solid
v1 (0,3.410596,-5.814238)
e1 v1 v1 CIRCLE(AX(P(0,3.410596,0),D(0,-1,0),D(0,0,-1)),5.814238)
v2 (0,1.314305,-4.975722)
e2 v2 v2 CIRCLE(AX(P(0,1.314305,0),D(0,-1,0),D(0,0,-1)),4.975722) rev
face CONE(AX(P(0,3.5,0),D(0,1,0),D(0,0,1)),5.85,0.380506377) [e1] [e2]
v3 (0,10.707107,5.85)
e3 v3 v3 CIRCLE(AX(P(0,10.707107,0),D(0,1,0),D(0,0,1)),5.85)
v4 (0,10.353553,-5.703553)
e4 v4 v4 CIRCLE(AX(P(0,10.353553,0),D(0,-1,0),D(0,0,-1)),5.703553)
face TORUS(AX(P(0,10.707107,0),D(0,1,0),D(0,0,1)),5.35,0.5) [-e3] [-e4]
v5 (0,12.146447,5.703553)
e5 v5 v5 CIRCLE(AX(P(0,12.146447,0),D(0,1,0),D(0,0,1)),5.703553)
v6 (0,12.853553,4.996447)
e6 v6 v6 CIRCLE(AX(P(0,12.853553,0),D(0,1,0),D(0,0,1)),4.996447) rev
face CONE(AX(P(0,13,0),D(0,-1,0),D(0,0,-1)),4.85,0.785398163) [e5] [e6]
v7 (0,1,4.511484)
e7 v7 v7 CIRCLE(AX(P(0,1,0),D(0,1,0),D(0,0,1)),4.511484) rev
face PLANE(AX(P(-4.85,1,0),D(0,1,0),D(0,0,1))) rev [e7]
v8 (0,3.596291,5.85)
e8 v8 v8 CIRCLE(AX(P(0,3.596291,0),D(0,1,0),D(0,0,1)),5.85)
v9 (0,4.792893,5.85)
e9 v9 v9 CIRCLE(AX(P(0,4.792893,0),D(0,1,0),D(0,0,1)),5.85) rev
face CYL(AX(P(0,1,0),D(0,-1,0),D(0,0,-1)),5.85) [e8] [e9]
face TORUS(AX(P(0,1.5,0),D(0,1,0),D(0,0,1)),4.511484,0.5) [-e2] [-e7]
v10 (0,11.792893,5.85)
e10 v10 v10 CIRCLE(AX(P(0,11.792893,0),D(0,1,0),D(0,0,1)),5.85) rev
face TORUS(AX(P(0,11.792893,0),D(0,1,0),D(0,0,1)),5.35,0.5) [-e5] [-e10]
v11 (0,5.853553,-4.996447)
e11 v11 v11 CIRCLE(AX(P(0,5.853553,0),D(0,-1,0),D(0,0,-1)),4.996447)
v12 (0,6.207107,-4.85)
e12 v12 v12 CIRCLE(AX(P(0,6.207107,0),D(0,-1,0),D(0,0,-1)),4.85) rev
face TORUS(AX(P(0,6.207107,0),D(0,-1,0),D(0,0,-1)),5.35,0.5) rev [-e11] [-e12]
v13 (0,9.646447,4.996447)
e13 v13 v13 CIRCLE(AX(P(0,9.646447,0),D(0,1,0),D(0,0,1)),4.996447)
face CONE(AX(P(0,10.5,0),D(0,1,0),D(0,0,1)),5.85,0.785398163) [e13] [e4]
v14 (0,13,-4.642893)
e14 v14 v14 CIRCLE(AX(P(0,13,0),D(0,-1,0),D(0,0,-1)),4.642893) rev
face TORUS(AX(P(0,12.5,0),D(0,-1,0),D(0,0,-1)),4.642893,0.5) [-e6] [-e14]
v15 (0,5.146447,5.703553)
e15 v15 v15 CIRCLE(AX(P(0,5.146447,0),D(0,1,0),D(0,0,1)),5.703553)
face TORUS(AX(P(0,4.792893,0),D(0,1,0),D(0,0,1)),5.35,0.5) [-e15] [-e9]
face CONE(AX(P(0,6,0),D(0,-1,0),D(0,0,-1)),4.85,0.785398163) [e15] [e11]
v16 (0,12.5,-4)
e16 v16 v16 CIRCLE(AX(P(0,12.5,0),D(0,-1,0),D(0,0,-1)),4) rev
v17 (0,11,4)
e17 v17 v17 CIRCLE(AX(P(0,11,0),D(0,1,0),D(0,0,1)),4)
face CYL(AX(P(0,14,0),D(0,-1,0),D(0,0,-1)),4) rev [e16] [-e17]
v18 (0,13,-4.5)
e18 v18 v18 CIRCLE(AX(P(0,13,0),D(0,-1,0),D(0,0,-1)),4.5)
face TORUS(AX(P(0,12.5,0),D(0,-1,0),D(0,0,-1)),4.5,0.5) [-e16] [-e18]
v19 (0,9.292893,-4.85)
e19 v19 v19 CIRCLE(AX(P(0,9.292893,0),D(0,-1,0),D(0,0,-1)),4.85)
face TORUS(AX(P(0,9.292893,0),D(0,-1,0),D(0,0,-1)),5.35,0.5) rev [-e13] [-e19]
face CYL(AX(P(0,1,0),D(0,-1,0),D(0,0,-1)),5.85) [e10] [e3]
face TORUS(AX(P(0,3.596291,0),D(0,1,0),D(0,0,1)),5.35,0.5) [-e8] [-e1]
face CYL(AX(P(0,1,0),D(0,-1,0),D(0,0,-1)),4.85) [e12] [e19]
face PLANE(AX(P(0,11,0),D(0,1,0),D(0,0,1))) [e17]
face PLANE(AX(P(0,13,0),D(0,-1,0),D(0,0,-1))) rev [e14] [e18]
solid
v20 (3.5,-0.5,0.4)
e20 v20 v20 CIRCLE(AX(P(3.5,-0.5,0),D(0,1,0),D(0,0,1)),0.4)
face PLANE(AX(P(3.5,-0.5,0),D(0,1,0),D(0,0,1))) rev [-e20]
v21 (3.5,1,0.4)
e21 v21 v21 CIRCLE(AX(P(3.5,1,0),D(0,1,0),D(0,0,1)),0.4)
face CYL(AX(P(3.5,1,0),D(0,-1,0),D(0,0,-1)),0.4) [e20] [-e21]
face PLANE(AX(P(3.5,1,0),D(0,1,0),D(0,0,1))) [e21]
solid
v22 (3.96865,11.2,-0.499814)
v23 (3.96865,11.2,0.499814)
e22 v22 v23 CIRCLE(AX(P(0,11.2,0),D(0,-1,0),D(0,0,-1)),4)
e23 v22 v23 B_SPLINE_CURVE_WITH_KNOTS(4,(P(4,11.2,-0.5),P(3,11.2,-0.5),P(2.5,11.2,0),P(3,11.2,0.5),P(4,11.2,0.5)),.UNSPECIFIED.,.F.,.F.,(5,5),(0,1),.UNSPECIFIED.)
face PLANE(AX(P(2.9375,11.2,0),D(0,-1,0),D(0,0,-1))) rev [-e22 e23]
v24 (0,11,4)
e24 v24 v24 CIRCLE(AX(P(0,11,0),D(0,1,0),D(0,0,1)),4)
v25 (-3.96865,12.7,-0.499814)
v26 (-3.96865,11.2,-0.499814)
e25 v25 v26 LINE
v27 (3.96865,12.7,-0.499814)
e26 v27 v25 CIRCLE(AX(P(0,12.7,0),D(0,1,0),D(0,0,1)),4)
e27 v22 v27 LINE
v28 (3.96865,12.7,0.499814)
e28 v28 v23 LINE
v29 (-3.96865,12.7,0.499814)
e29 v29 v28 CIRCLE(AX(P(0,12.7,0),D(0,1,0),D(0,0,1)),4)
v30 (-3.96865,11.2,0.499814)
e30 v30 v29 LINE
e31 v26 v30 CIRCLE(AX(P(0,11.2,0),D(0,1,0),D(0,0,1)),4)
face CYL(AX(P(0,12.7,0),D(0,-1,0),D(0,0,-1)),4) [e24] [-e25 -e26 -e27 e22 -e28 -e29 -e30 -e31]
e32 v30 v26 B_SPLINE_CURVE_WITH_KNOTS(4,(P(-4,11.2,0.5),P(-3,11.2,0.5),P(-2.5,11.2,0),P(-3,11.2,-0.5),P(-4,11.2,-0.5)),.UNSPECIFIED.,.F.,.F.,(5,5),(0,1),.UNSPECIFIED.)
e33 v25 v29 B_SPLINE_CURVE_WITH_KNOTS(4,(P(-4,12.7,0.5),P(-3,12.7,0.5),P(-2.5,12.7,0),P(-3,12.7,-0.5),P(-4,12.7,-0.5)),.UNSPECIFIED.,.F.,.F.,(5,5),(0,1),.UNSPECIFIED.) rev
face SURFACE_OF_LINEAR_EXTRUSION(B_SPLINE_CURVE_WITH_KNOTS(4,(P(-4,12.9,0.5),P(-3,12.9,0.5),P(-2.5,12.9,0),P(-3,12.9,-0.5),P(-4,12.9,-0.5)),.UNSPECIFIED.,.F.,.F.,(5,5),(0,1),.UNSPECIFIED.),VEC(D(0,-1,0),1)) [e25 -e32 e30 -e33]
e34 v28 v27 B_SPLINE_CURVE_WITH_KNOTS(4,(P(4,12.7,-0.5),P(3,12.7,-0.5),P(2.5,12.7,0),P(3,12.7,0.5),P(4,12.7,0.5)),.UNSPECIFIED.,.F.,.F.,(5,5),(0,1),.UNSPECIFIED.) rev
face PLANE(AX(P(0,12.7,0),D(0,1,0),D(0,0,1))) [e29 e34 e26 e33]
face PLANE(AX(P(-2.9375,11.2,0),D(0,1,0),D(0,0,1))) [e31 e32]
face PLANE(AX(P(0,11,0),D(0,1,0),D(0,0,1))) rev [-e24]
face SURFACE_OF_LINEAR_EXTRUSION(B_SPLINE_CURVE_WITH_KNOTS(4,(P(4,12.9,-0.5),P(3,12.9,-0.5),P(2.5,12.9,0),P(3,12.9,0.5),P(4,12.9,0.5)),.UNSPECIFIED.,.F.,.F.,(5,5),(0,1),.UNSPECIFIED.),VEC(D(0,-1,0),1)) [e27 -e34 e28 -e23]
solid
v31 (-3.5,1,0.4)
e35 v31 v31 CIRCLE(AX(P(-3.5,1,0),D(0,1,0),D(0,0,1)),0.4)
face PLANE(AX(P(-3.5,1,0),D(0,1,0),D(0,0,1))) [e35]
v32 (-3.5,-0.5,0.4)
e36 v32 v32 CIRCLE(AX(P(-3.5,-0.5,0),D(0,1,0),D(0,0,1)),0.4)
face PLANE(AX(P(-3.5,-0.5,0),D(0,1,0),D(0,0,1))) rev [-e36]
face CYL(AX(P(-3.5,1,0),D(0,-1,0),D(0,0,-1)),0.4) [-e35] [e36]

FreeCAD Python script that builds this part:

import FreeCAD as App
import Part
import Sketcher
from FreeCAD import Vector


def edges_at(feature, points):
    """Names of the edges that pass closest to the given points."""
    edges = feature.Shape.Edges
    near = lambda p: min(range(len(edges)), key=lambda i: edges[i].distToShape(Part.Vertex(*p))[0])
    return sorted({f"Edge{near(p) + 1}" for p in points})

doc = App.newDocument("Part")
body = doc.addObject("PartDesign::Body", "Body")

# Sketch on XZ plane
sketch1 = doc.addObject("Sketcher::SketchObject", "Sketch")
body.addObject(sketch1)
sketch1.AttachmentSupport = (doc.XZ_Plane, [""])
sketch1.MapMode = "FlatFace"
sketch1.AttachmentOffset = App.Placement(Vector(0, 0, 0.5), App.Rotation())
sketch1.addGeometry(Part.Circle(Vector(-3.5, 0, 0), Vector(0, 0, 1), 0.4), False)
sketch1.addConstraint(Sketcher.Constraint("PointOnObject", 0, 3, -1))
sketch1.addConstraint(Sketcher.Constraint("Diameter", 0, 0.8))
sketch1.addConstraint(Sketcher.Constraint("DistanceX", 0, 3, -1, 1, 3.5))
pad1 = doc.addObject("PartDesign::Pad", "Pad")
body.addObject(pad1)
pad1.Profile = sketch1
pad1.Length = 1.5
pad1.Reversed = True
body2 = doc.addObject("PartDesign::Body", "Body001")

# Sketch on XZ plane
sketch2 = doc.addObject("Sketcher::SketchObject", "Sketch001")
body2.addObject(sketch2)
sketch2.AttachmentSupport = (doc.getObject("XZ_Plane001"), [""])
sketch2.MapMode = "FlatFace"
sketch2.AttachmentOffset = App.Placement(Vector(0, 0, 0.5), App.Rotation())
sketch2.addGeometry(Part.Circle(Vector(3.5, 0, 0), Vector(0, 0, 1), 0.4), False)
sketch2.addConstraint(Sketcher.Constraint("PointOnObject", 0, 3, -1))
sketch2.addConstraint(Sketcher.Constraint("Diameter", 0, 0.8))
sketch2.addConstraint(Sketcher.Constraint("DistanceX", -1, 1, 0, 3, 3.5))
pad2 = doc.addObject("PartDesign::Pad", "Pad001")
body2.addObject(pad2)
pad2.Profile = sketch2
pad2.Length = 1.5
pad2.Reversed = True
body3 = doc.addObject("PartDesign::Body", "Body002")

# Sketch on XY plane
sketch3 = doc.addObject("Sketcher::SketchObject", "Sketch002")
body3.addObject(sketch3)
sketch3.AttachmentSupport = (doc.getObject("XY_Plane002"), [""])
sketch3.MapMode = "FlatFace"
sketch3.addGeometry(Part.LineSegment(Vector(0, 13, 0), Vector(-4.8, 13, 0)), False)
sketch3.addGeometry(Part.LineSegment(Vector(-4.8, 13, 0), Vector(-5.8, 12, 0)), False)
sketch3.addGeometry(Part.LineSegment(Vector(-5.8, 12, 0), Vector(-5.8, 10.5, 0)), False)
sketch3.addGeometry(Part.LineSegment(Vector(-5.8, 10.5, 0), Vector(-4.8, 9.5, 0)), False)
sketch3.addGeometry(Part.LineSegment(Vector(-4.8, 9.5, 0), Vector(-4.8, 6, 0)), False)
sketch3.addGeometry(Part.LineSegment(Vector(-4.8, 6, 0), Vector(-5.8, 5, 0)), False)
sketch3.addGeometry(Part.LineSegment(Vector(-5.8, 5, 0), Vector(-5.8, 3.5, 0)), False)
sketch3.addGeometry(Part.LineSegment(Vector(-5.8, 3.5, 0), Vector(-4.8, 1, 0)), False)
sketch3.addGeometry(Part.LineSegment(Vector(-4.8, 1, 0), Vector(0, 1, 0)), False)
sketch3.addGeometry(Part.LineSegment(Vector(0, 1, 0), Vector(0, 13, 0)), False)
sketch3.addConstraint(Sketcher.Constraint("Coincident", 0, 2, 1, 1))
sketch3.addConstraint(Sketcher.Constraint("Coincident", 1, 2, 2, 1))
sketch3.addConstraint(Sketcher.Constraint("Coincident", 2, 2, 3, 1))
sketch3.addConstraint(Sketcher.Constraint("Coincident", 3, 2, 4, 1))
sketch3.addConstraint(Sketcher.Constraint("Coincident", 4, 2, 5, 1))
sketch3.addConstraint(Sketcher.Constraint("Coincident", 5, 2, 6, 1))
sketch3.addConstraint(Sketcher.Constraint("Coincident", 6, 2, 7, 1))
sketch3.addConstraint(Sketcher.Constraint("Coincident", 7, 2, 8, 1))
sketch3.addConstraint(Sketcher.Constraint("Coincident", 8, 2, 9, 1))
sketch3.addConstraint(Sketcher.Constraint("Coincident", 9, 2, 0, 1))
sketch3.addConstraint(Sketcher.Constraint("Horizontal", 0))
sketch3.addConstraint(Sketcher.Constraint("Vertical", 2))
sketch3.addConstraint(Sketcher.Constraint("Vertical", 4))
sketch3.addConstraint(Sketcher.Constraint("Vertical", 6))
sketch3.addConstraint(Sketcher.Constraint("Horizontal", 8))
sketch3.addConstraint(Sketcher.Constraint("Vertical", 9))
sketch3.addConstraint(Sketcher.Constraint("PointOnObject", 8, 2, -2))
sketch3.addConstraint(Sketcher.Constraint("Perpendicular", 1, 3))
sketch3.addConstraint(Sketcher.Constraint("Perpendicular", 3, 5))
sketch3.addConstraint(Sketcher.Constraint("Vertical", 0, 2, 3, 2))
sketch3.addConstraint(Sketcher.Constraint("Vertical", 2, 2, 5, 2))
sketch3.addConstraint(Sketcher.Constraint("Vertical", 4, 2, 7, 2))
sketch3.addConstraint(Sketcher.Constraint("Equal", 2, 6))
sketch3.addConstraint(Sketcher.Constraint("Equal", 1, 3))
sketch3.addConstraint(Sketcher.Constraint("DistanceY", 9, 1, 9, 2, 12.0))
sketch3.addConstraint(Sketcher.Constraint("DistanceY", 2, 2, 2, 1, 1.5))
sketch3.addConstraint(Sketcher.Constraint("DistanceY", 4, 2, 4, 1, 3.5))
sketch3.addConstraint(Sketcher.Constraint("DistanceY", -1, 1, 0, 2, 13.0))
sketch3.addConstraint(Sketcher.Constraint("DistanceY", -1, 1, 1, 2, 12.0))
sketch3.addConstraint(Sketcher.Constraint("DistanceX", 0, 2, 0, 1, 4.85))
revolution = doc.addObject("PartDesign::Revolution", "Revolution")
body3.addObject(revolution)
revolution.Profile = sketch3
revolution.ReferenceAxis = (sketch3, ["V_Axis"])
revolution.Angle = 360
body4 = doc.addObject("PartDesign::Body", "Body003")

# Sketch on XZ plane
sketch4 = doc.addObject("Sketcher::SketchObject", "Sketch003")
body4.addObject(sketch4)
sketch4.AttachmentSupport = (doc.getObject("XZ_Plane003"), [""])
sketch4.MapMode = "FlatFace"
sketch4.AttachmentOffset = App.Placement(Vector(0, 0, -11), App.Rotation())
sketch4.addGeometry(Part.Circle(Vector(0, 0, 0), Vector(0, 0, 1), 4), False)
sketch4.addConstraint(Sketcher.Constraint("Coincident", 0, 3, -1, 1))
sketch4.addConstraint(Sketcher.Constraint("Diameter", 0, 8.0))
pad3 = doc.addObject("PartDesign::Pad", "Pad002")
body4.addObject(pad3)
pad3.Profile = sketch4
pad3.Length = 3
pad3.Reversed = True
doc.recompute()

boolean = doc.addObject("PartDesign::Boolean", "Boolean")
body3.addObject(boolean)
boolean.Type = "Cut"
boolean.addObjects([body4])
doc.recompute()

fillet = doc.addObject("PartDesign::Fillet", "Fillet")
body3.addObject(fillet)
fillet.Base = (boolean, edges_at(boolean, [
    (0, 12, 5.85),
    (0, 13, 4.85),
    (0, 13, -4),
    (0, 1, 4.85),
    (0, 3.5, 5.85),
    (0, 5, 5.85),
    (0, 6, 4.85),
    (0, 9.5, 4.85),
    (0, 10.5, 5.85),
]))
fillet.Radius = 0.5
body5 = doc.addObject("PartDesign::Body", "Body004")

# Sketch on XZ plane
sketch5 = doc.addObject("Sketcher::SketchObject", "Sketch004")
body5.addObject(sketch5)
sketch5.AttachmentSupport = (doc.getObject("XZ_Plane004"), [""])
sketch5.MapMode = "FlatFace"
sketch5.AttachmentOffset = App.Placement(Vector(0, 0, -11), App.Rotation())
sketch5.addGeometry(Part.Circle(Vector(0, 0, 0), Vector(0, 0, 1), 4), False)
sketch5.addConstraint(Sketcher.Constraint("Coincident", 0, 3, -1, 1))
sketch5.addConstraint(Sketcher.Constraint("Diameter", 0, 8.0))
pad4 = doc.addObject("PartDesign::Pad", "Pad003")
body5.addObject(pad4)
pad4.Profile = sketch5
pad4.Length = 1.7
pad4.Reversed = True
body6 = doc.addObject("PartDesign::Body", "Body005")

# Sketch on XZ plane
sketch6 = doc.addObject("Sketcher::SketchObject", "Sketch005")
body6.addObject(sketch6)
sketch6.AttachmentSupport = (doc.getObject("XZ_Plane005"), [""])
sketch6.MapMode = "FlatFace"
sketch6.AttachmentOffset = App.Placement(Vector(0, 0, -11.2), App.Rotation())
sketch6.addGeometry(Part.LineSegment(Vector(-4, -0.5, 0), Vector(-4, 0.5, 0)), False)
sketch6.addGeometry(Part.BSplineCurve([Vector(-4, -0.5, 0), Vector(-3, -0.5, 0), Vector(-2.5, 0, 0), Vector(-3, 0.5, 0), Vector(-4, 0.5, 0)], [5, 5], [0, 1], False, 4, [1, 1, 1, 1, 1], False), False)
sketch6.addConstraint(Sketcher.Constraint("Block", 1))
sketch6.addConstraint(Sketcher.Constraint("Coincident", 0, 1, 1, 1))
sketch6.addConstraint(Sketcher.Constraint("Coincident", 1, 2, 0, 2))
pad5 = doc.addObject("PartDesign::Pad", "Pad004")
body6.addObject(pad5)
pad5.Profile = sketch6
pad5.Length = 1.7
pad5.Reversed = True
body7 = doc.addObject("PartDesign::Body", "Body006")

# Sketch on XZ plane
sketch7 = doc.addObject("Sketcher::SketchObject", "Sketch006")
body7.addObject(sketch7)
sketch7.AttachmentSupport = (doc.getObject("XZ_Plane006"), [""])
sketch7.MapMode = "FlatFace"
sketch7.AttachmentOffset = App.Placement(Vector(0, 0, -11.2), App.Rotation())
sketch7.addGeometry(Part.LineSegment(Vector(4, 0.5, 0), Vector(4, -0.5, 0)), False)
sketch7.addGeometry(Part.BSplineCurve([Vector(4, -0.5, 0), Vector(3, -0.5, 0), Vector(2.5, 0, 0), Vector(3, 0.5, 0), Vector(4, 0.5, 0)], [5, 5], [0, 1], False, 4, [1, 1, 1, 1, 1], False), False)
sketch7.addConstraint(Sketcher.Constraint("Block", 1))
sketch7.addConstraint(Sketcher.Constraint("Coincident", 0, 1, 1, 2))
sketch7.addConstraint(Sketcher.Constraint("Coincident", 1, 1, 0, 2))
pad6 = doc.addObject("PartDesign::Pad", "Pad005")
body7.addObject(pad6)
pad6.Profile = sketch7
pad6.Length = 1.7
pad6.Reversed = True
doc.recompute()

boolean2 = doc.addObject("PartDesign::Boolean", "Boolean001")
body5.addObject(boolean2)
boolean2.Type = "Cut"
boolean2.addObjects([body6])
doc.recompute()

boolean3 = doc.addObject("PartDesign::Boolean", "Boolean002")
body5.addObject(boolean3)
boolean3.Type = "Cut"
boolean3.addObjects([body7])

doc.recompute()
